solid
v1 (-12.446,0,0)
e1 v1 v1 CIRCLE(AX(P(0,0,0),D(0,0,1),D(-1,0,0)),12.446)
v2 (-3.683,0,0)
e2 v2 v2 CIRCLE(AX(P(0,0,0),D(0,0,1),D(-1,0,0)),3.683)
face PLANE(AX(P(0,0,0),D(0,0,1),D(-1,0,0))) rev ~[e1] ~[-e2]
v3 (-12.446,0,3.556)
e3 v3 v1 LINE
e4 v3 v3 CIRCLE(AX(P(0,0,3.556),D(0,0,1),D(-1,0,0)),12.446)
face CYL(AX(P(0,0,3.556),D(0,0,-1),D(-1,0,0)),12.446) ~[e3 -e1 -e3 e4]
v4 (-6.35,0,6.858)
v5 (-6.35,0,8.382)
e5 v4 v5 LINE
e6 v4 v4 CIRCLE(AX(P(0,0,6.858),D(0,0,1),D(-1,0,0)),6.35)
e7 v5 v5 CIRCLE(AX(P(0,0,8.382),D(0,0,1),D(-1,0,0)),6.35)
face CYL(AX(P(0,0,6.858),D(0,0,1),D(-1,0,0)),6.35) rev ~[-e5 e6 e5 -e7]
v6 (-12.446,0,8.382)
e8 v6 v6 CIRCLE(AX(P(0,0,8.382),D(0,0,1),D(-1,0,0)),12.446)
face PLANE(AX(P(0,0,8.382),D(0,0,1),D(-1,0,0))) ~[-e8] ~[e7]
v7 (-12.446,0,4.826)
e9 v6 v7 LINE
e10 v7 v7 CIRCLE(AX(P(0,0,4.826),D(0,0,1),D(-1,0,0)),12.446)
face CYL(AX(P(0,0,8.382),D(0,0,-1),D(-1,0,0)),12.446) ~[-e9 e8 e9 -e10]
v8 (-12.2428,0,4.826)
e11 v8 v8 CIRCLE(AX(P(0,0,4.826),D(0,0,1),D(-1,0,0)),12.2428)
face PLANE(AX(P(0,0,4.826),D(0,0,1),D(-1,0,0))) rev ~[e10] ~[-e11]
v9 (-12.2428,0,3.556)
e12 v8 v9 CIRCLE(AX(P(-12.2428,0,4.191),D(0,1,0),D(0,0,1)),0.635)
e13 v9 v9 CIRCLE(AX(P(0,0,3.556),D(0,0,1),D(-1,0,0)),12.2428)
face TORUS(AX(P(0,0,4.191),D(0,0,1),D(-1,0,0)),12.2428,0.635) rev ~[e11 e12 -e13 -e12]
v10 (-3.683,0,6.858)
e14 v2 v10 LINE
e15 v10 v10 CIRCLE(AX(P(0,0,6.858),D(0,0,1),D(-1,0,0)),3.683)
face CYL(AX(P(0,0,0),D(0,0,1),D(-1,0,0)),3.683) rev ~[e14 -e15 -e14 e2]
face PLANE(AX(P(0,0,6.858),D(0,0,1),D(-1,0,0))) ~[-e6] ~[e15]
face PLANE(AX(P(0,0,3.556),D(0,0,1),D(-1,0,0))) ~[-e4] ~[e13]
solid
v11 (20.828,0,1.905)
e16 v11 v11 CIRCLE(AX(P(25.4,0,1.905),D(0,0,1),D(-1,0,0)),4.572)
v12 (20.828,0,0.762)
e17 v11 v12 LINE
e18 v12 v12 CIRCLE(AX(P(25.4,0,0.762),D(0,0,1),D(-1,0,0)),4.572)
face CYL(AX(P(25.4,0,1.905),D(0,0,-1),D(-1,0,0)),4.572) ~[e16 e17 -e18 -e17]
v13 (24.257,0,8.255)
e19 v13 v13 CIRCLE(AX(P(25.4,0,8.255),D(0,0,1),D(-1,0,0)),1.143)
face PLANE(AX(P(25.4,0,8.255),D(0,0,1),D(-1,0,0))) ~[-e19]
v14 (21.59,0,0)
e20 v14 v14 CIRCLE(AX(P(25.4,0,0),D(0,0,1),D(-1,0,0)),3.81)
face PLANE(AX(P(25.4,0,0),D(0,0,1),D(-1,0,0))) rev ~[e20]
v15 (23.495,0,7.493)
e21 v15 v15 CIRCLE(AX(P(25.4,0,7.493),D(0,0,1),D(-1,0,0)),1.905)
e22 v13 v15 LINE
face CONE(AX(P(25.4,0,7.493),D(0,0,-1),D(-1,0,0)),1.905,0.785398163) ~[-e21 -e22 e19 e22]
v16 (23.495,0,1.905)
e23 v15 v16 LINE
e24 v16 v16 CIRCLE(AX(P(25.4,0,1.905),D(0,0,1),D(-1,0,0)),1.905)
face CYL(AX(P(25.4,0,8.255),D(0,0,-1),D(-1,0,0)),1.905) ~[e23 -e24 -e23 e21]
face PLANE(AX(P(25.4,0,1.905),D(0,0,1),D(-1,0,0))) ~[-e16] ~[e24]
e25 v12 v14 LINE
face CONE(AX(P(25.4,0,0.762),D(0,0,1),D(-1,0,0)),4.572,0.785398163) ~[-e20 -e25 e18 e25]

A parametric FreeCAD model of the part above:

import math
import FreeCAD as App
import Part
import Sketcher

V = App.Vector
Q = App.Units.Quantity


def edges_at(feature, points):
    """Names of the edges that pass closest to the given points."""
    edges = feature.Shape.Edges
    near = lambda p: min(range(len(edges)), key=lambda i: edges[i].distToShape(Part.Vertex(*p))[0])
    return sorted({f"Edge{near(p) + 1}" for p in points})


def add_polygon(sketch, points):
    """Adds a closed chain of lines whose ends are joined by coincident constraints."""
    first, n = sketch.GeometryCount, len(points)
    for a, b in zip(points, points[1:] + points[:1]):
        sketch.addGeometry(Part.LineSegment(App.Vector(*a, 0), App.Vector(*b, 0)), False)
    for i in range(n):
        sketch.addConstraint(Sketcher.Constraint("Coincident", first + i, 2, first + (i + 1) % n, 1))

doc = App.newDocument("Part")
params = doc.addObject("Spreadsheet::Sheet", "Params")
for row, (alias, value) in enumerate([
    ("sketch1_radius", "0.025 in"),
    ("sketch1_width", "0.24 in"),
    ("sketch1_height", "0.27 in"),
    ("sketch1_height2", "0.06 in"),
    ("sketch1_width2", "0.345 in"),
    ("revolution_angle", "360 deg"),
    ("sketch2_width", "0.18 in"),
    ("sketch2_height", "0.25 in"),
    ("sketch2_width2", "0.075 in"),
    ("revolution2_angle", "360 deg"),
    ("chamfer_size", "0.03 in"),
], start=1):
    params.set(f"A{row}", alias)
    params.set(f"B{row}", "=" + value)
    params.setAlias(f"B{row}", alias)

body = doc.addObject("PartDesign::Body", "Body")

# Sketch on XZ plane
sketch1 = body.newObject("Sketcher::SketchObject", "Sketch")
sketch1.AttachmentSupport = (doc.getObject("XZ_Plane"), [""])
sketch1.MapMode = "FlatFace"
sketch1.addGeometry([
    Part.LineSegment(V(-12.446, 0, 0), V(-3.683, 0, 0)),  # 0
    Part.LineSegment(V(-3.683, 0, 0), V(-3.683, 6.858, 0)),  # 1
    Part.LineSegment(V(-3.683, 6.858, 0), V(-6.35, 6.858, 0)),  # 2
    Part.LineSegment(V(-6.35, 6.858, 0), V(-6.35, 8.382, 0)),  # 3
    Part.LineSegment(V(-6.35, 8.382, 0), V(-12.446, 8.382, 0)),  # 4
    Part.LineSegment(V(-12.446, 8.382, 0), V(-12.446, 4.826, 0)),  # 5
    Part.LineSegment(V(-12.446, 4.826, 0), V(-12.2428, 4.826, 0)),  # 6
    Part.ArcOfCircle(Part.Circle(V(-12.2428, 4.191, 0), V(0, 0, 1), 0.635), math.radians(-90), math.radians(90)),  # 7
    Part.LineSegment(V(-12.2428, 3.556, 0), V(-12.446, 3.556, 0)),  # 8
    Part.LineSegment(V(-12.446, 3.556, 0), V(-12.446, 0, 0)),  # 9
], False)
sketch1.addConstraint([
    Sketcher.Constraint("Coincident", 0, 2, 1, 1),
    Sketcher.Constraint("Coincident", 1, 2, 2, 1),
    Sketcher.Constraint("Coincident", 2, 2, 3, 1),
    Sketcher.Constraint("Coincident", 3, 2, 4, 1),
    Sketcher.Constraint("Coincident", 4, 2, 5, 1),
    Sketcher.Constraint("Coincident", 5, 2, 6, 1),
    Sketcher.Constraint("Tangent", 6, 2, 7, 2),
    Sketcher.Constraint("Tangent", 7, 1, 8, 1),
    Sketcher.Constraint("Coincident", 8, 2, 9, 1),
    Sketcher.Constraint("Coincident", 9, 2, 0, 1),
    Sketcher.Constraint("Horizontal", 0),
    Sketcher.Constraint("Vertical", 1),
    Sketcher.Constraint("Horizontal", 2),
    Sketcher.Constraint("Vertical", 3),
    Sketcher.Constraint("Horizontal", 4),
    Sketcher.Constraint("Vertical", 5),
    Sketcher.Constraint("Horizontal", 6),
    Sketcher.Constraint("Horizontal", 8),
    Sketcher.Constraint("Vertical", 9),
    Sketcher.Constraint("PointOnObject", 0, 2, -1),
    Sketcher.Constraint("Vertical", 5, 2, 8, 2),
    Sketcher.Constraint("Equal", 5, 9),
    Sketcher.Constraint("Radius", 7, Q("0.025 in")),
    Sketcher.Constraint("DistanceX", 4, 2, 4, 1, Q("0.24 in")),
    Sketcher.Constraint("DistanceY", 1, 1, 1, 2, Q("0.27 in")),
    Sketcher.Constraint("DistanceY", 3, 1, 3, 2, Q("0.06 in")),
    Sketcher.Constraint("DistanceX", 0, 1, 0, 2, Q("0.345 in")),
    Sketcher.Constraint("DistanceX", 6, 1, 6, 2, Q("0.008 in")),
    Sketcher.Constraint("DistanceX", 2, 2, -1, 1, Q("0.25 in")),
])
sketch1.setExpression("Constraints[22]", "Params.sketch1_radius")
sketch1.setExpression("Constraints[23]", "Params.sketch1_width")
sketch1.setExpression("Constraints[24]", "Params.sketch1_height")
sketch1.setExpression("Constraints[25]", "Params.sketch1_height2")
sketch1.setExpression("Constraints[26]", "Params.sketch1_width2")
revolution = body.newObject("PartDesign::Revolution", "Revolution")
revolution.Profile = sketch1
revolution.ReferenceAxis = (sketch1, ["V_Axis"])
revolution.setExpression("Angle", "Params.revolution_angle")
body2 = doc.addObject("PartDesign::Body", "Body001")

# Sketch on XZ plane
sketch2 = body2.newObject("Sketcher::SketchObject", "Sketch001")
sketch2.AttachmentSupport = (doc.getObject("XZ_Plane001"), [""])
sketch2.MapMode = "FlatFace"
add_polygon(sketch2, [(20.828, 1.905), (20.828, 0), (25.4, 0), (25.4, 8.255), (23.495, 8.255), (23.495, 1.905)])  # lines 0-5
sketch2.addGeometry(Part.LineSegment(V(25.4, 0, 0), V(25.4, 8.255, 0)), True)  # axis
sketch2.addConstraint([
    Sketcher.Constraint("Vertical", 0),
    Sketcher.Constraint("Horizontal", 1),
    Sketcher.Constraint("Vertical", 2),
    Sketcher.Constraint("Horizontal", 3),
    Sketcher.Constraint("Vertical", 4),
    Sketcher.Constraint("Horizontal", 5),
    Sketcher.Constraint("Vertical", 6),
    Sketcher.Constraint("Coincident", 6, 1, 1, 2),
    Sketcher.Constraint("PointOnObject", 0, 2, -1),
    Sketcher.Constraint("Horizontal", 3, 2, 6, 2),
    Sketcher.Constraint("Equal", 3, 0),
    Sketcher.Constraint("DistanceX", -1, 1, 1, 2, Q("1 in")),
    Sketcher.Constraint("DistanceX", 1, 1, 1, 2, Q("0.18 in")),
    Sketcher.Constraint("DistanceY", 4, 2, 4, 1, Q("0.25 in")),
    Sketcher.Constraint("DistanceX", 3, 2, 3, 1, Q("0.075 in")),
])
sketch2.setExpression("Constraints[18]", "Params.sketch2_width")
sketch2.setExpression("Constraints[19]", "Params.sketch2_height")
sketch2.setExpression("Constraints[20]", "Params.sketch2_width2")
revolution2 = body2.newObject("PartDesign::Revolution", "Revolution001")
revolution2.Profile = sketch2
revolution2.ReferenceAxis = (sketch2, ["Axis0"])
revolution2.setExpression("Angle", "Params.revolution2_angle")
doc.recompute()

chamfer = body2.newObject("PartDesign::Chamfer", "Chamfer")
chamfer.Base = (revolution2, edges_at(revolution2, [(27.305, 0, 8.255), (29.972, 0, 0)]))
chamfer.setExpression("Size", "Params.chamfer_size")

doc.recompute()
